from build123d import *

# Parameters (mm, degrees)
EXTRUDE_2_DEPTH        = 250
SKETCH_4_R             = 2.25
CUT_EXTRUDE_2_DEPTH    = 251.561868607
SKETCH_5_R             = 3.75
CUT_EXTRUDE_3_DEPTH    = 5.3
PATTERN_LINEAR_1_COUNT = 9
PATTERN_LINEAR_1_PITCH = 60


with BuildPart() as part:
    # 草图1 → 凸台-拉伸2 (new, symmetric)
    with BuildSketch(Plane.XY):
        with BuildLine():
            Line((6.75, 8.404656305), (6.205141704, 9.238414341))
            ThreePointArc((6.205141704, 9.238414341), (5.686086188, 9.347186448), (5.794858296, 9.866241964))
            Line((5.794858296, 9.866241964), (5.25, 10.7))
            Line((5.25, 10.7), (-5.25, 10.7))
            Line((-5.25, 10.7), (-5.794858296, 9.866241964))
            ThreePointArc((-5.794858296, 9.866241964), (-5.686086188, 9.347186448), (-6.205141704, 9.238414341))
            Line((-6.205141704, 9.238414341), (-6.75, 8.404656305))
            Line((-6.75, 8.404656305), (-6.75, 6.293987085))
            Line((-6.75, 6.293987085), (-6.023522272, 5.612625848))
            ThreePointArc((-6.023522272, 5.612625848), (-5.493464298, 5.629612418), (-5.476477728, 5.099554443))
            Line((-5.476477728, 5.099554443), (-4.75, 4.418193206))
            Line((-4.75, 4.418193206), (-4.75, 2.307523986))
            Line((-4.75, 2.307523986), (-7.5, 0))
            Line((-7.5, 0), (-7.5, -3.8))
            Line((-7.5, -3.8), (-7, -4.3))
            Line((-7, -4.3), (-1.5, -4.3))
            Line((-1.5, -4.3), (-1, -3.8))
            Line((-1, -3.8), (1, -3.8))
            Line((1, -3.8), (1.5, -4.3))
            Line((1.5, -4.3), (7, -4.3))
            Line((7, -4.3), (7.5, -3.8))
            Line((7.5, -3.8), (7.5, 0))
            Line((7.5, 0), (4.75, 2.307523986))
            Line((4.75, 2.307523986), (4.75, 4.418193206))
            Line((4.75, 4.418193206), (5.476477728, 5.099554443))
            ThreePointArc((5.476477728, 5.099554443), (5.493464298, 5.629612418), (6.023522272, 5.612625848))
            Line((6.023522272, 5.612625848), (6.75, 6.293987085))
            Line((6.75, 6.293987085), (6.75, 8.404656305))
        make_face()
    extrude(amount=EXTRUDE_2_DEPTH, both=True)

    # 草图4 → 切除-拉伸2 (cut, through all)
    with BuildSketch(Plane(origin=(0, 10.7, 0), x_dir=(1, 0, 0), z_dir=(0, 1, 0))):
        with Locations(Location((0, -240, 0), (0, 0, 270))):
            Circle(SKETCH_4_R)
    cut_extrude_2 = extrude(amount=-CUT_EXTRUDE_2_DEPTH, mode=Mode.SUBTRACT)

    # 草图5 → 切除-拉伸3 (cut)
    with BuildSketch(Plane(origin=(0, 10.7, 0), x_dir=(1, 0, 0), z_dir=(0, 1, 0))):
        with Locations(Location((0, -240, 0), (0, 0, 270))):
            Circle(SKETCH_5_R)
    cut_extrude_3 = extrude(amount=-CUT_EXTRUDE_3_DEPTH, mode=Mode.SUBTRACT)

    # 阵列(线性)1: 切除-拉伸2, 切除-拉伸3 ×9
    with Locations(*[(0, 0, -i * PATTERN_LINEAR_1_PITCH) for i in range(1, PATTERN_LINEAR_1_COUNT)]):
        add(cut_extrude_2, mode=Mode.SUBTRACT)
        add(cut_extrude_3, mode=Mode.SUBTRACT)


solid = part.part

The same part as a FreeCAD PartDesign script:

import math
import FreeCAD as App
import Part
import Sketcher
from FreeCAD import Vector
Q = App.Units.Quantity

doc = App.newDocument("Part")
body = doc.addObject("PartDesign::Body", "Body")

# Sketch on XY plane
sketch1 = body.newObject("Sketcher::SketchObject", "Sketch")
sketch1.AttachmentSupport = (doc.getObject("XY_Plane"), [""])
sketch1.MapMode = "FlatFace"
sketch1.addGeometry(Part.LineSegment(Vector(6.75, 8.404656, 0), Vector(6.205142, 9.238414, 0)), False)
sketch1.addGeometry(Part.ArcOfCircle(Part.Circle(Vector(6, 9.552328, 0), Vector(0, 0, 1), 0.375), math.radians(123.164492), math.radians(303.164492)), False)
sketch1.addGeometry(Part.LineSegment(Vector(5.794858, 9.866242, 0), Vector(5.25, 10.7, 0)), False)
sketch1.addGeometry(Part.LineSegment(Vector(5.25, 10.7, 0), Vector(-5.25, 10.7, 0)), False)
sketch1.addGeometry(Part.LineSegment(Vector(-5.25, 10.7, 0), Vector(-5.794858, 9.866242, 0)), False)
sketch1.addGeometry(Part.ArcOfCircle(Part.Circle(Vector(-6, 9.552328, 0), Vector(0, 0, 1), 0.375), math.radians(-123.164492), math.radians(56.835508)), False)
sketch1.addGeometry(Part.LineSegment(Vector(-6.205142, 9.238414, 0), Vector(-6.75, 8.404656, 0)), False)
sketch1.addGeometry(Part.LineSegment(Vector(-6.75, 8.404656, 0), Vector(-6.75, 6.293987, 0)), False)
sketch1.addGeometry(Part.LineSegment(Vector(-6.75, 6.293987, 0), Vector(-6.023522, 5.612626, 0)), False)
sketch1.addGeometry(Part.ArcOfCircle(Part.Circle(Vector(-5.75, 5.35609, 0), Vector(0, 0, 1), 0.375), math.radians(-43.164492), math.radians(136.835508)), False)
sketch1.addGeometry(Part.LineSegment(Vector(-5.476478, 5.099554, 0), Vector(-4.75, 4.418193, 0)), False)
sketch1.addGeometry(Part.LineSegment(Vector(-4.75, 4.418193, 0), Vector(-4.75, 2.307524, 0)), False)
sketch1.addGeometry(Part.LineSegment(Vector(-4.75, 2.307524, 0), Vector(-7.5, 0, 0)), False)
sketch1.addGeometry(Part.LineSegment(Vector(-7.5, 0, 0), Vector(-7.5, -3.8, 0)), False)
sketch1.addGeometry(Part.LineSegment(Vector(-7.5, -3.8, 0), Vector(-7, -4.3, 0)), False)
sketch1.addGeometry(Part.LineSegment(Vector(-7, -4.3, 0), Vector(-1.5, -4.3, 0)), False)
sketch1.addGeometry(Part.LineSegment(Vector(-1.5, -4.3, 0), Vector(-1, -3.8, 0)), False)
sketch1.addGeometry(Part.LineSegment(Vector(-1, -3.8, 0), Vector(1, -3.8, 0)), False)
sketch1.addGeometry(Part.LineSegment(Vector(1, -3.8, 0), Vector(1.5, -4.3, 0)), False)
sketch1.addGeometry(Part.LineSegment(Vector(1.5, -4.3, 0), Vector(7, -4.3, 0)), False)
sketch1.addGeometry(Part.LineSegment(Vector(7, -4.3, 0), Vector(7.5, -3.8, 0)), False)
sketch1.addGeometry(Part.LineSegment(Vector(7.5, -3.8, 0), Vector(7.5, 0, 0)), False)
sketch1.addGeometry(Part.LineSegment(Vector(7.5, 0, 0), Vector(4.75, 2.307524, 0)), False)
sketch1.addGeometry(Part.LineSegment(Vector(4.75, 2.307524, 0), Vector(4.75, 4.418193, 0)), False)
sketch1.addGeometry(Part.LineSegment(Vector(4.75, 4.418193, 0), Vector(5.476478, 5.099554, 0)), False)
sketch1.addGeometry(Part.ArcOfCircle(Part.Circle(Vector(5.75, 5.35609, 0), Vector(0, 0, 1), 0.375), math.radians(43.164492), math.radians(223.164492)), False)
sketch1.addGeometry(Part.LineSegment(Vector(6.023522, 5.612626, 0), Vector(6.75, 6.293987, 0)), False)
sketch1.addGeometry(Part.LineSegment(Vector(6.75, 6.293987, 0), Vector(6.75, 8.404656, 0)), False)
sketch1.addConstraint(Sketcher.Constraint("Coincident", 0, 2, 1, 2))
sketch1.addConstraint(Sketcher.Constraint("Coincident", 1, 1, 2, 1))
sketch1.addConstraint(Sketcher.Constraint("Coincident", 2, 2, 3, 1))
sketch1.addConstraint(Sketcher.Constraint("Coincident", 3, 2, 4, 1))
sketch1.addConstraint(Sketcher.Constraint("Coincident", 4, 2, 5, 2))
sketch1.addConstraint(Sketcher.Constraint("Coincident", 5, 1, 6, 1))
sketch1.addConstraint(Sketcher.Constraint("Coincident", 6, 2, 7, 1))
sketch1.addConstraint(Sketcher.Constraint("Coincident", 7, 2, 8, 1))
sketch1.addConstraint(Sketcher.Constraint("Coincident", 8, 2, 9, 2))
sketch1.addConstraint(Sketcher.Constraint("Coincident", 9, 1, 10, 1))
sketch1.addConstraint(Sketcher.Constraint("Coincident", 10, 2, 11, 1))
sketch1.addConstraint(Sketcher.Constraint("Coincident", 11, 2, 12, 1))
sketch1.addConstraint(Sketcher.Constraint("Coincident", 12, 2, 13, 1))
sketch1.addConstraint(Sketcher.Constraint("Coincident", 13, 2, 14, 1))
sketch1.addConstraint(Sketcher.Constraint("Coincident", 14, 2, 15, 1))
sketch1.addConstraint(Sketcher.Constraint("Coincident", 15, 2, 16, 1))
sketch1.addConstraint(Sketcher.Constraint("Coincident", 16, 2, 17, 1))
sketch1.addConstraint(Sketcher.Constraint("Coincident", 17, 2, 18, 1))
sketch1.addConstraint(Sketcher.Constraint("Coincident", 18, 2, 19, 1))
sketch1.addConstraint(Sketcher.Constraint("Coincident", 19, 2, 20, 1))
sketch1.addConstraint(Sketcher.Constraint("Coincident", 20, 2, 21, 1))
sketch1.addConstraint(Sketcher.Constraint("Coincident", 21, 2, 22, 1))
sketch1.addConstraint(Sketcher.Constraint("Coincident", 22, 2, 23, 1))
sketch1.addConstraint(Sketcher.Constraint("Coincident", 23, 2, 24, 1))
sketch1.addConstraint(Sketcher.Constraint("Coincident", 24, 2, 25, 2))
sketch1.addConstraint(Sketcher.Constraint("Coincident", 25, 1, 26, 1))
sketch1.addConstraint(Sketcher.Constraint("Coincident", 26, 2, 27, 1))
sketch1.addConstraint(Sketcher.Constraint("Coincident", 27, 2, 0, 1))
sketch1.addConstraint(Sketcher.Constraint("Horizontal", 3))
sketch1.addConstraint(Sketcher.Constraint("Vertical", 7))
sketch1.addConstraint(Sketcher.Constraint("Vertical", 11))
sketch1.addConstraint(Sketcher.Constraint("Vertical", 13))
sketch1.addConstraint(Sketcher.Constraint("Horizontal", 15))
sketch1.addConstraint(Sketcher.Constraint("Horizontal", 17))
sketch1.addConstraint(Sketcher.Constraint("Horizontal", 19))
sketch1.addConstraint(Sketcher.Constraint("Vertical", 21))
sketch1.addConstraint(Sketcher.Constraint("Vertical", 23))
sketch1.addConstraint(Sketcher.Constraint("Vertical", 27))
sketch1.addConstraint(Sketcher.Constraint("Equal", 1, 5))
sketch1.addConstraint(Sketcher.Constraint("Equal", 5, 9))
sketch1.addConstraint(Sketcher.Constraint("Equal", 9, 25))
sketch1.addConstraint(Sketcher.Constraint("Symmetric", 12, 2, 21, 2, -1, 1))
sketch1.addConstraint(Sketcher.Constraint("Symmetric", 1, 3, 5, 3, -2))
sketch1.addConstraint(Sketcher.Constraint("Symmetric", 9, 3, 25, 3, -2))
sketch1.addConstraint(Sketcher.Constraint("Symmetric", 15, 2, 18, 2, -2))
sketch1.addConstraint(Sketcher.Constraint("Symmetric", 11, 2, 22, 2, -2))
sketch1.addConstraint(Sketcher.Constraint("Symmetric", 7, 2, 26, 2, -2))
sketch1.addConstraint(Sketcher.Constraint("PointOnObject", 12, 2, -1))
sketch1.addConstraint(Sketcher.Constraint("Parallel", 0, 2))
sketch1.addConstraint(Sketcher.Constraint("Parallel", 4, 6))
sketch1.addConstraint(Sketcher.Constraint("Parallel", 8, 10))
sketch1.addConstraint(Sketcher.Constraint("Perpendicular", 14, 16))
sketch1.addConstraint(Sketcher.Constraint("Perpendicular", 16, 18))
sketch1.addConstraint(Sketcher.Constraint("Perpendicular", 18, 20))
sketch1.addConstraint(Sketcher.Constraint("Parallel", 24, 26))
sketch1.addConstraint(Sketcher.Constraint("Horizontal", 1, 1, 4, 2))
sketch1.addConstraint(Sketcher.Constraint("Horizontal", 0, 2, 5, 1))
sketch1.addConstraint(Sketcher.Constraint("Horizontal", 13, 2, 16, 2))
sketch1.addConstraint(Sketcher.Constraint("Horizontal", 17, 2, 20, 2))
sketch1.addConstraint(Sketcher.Constraint("Horizontal", 10, 2, 23, 2))
sketch1.addConstraint(Sketcher.Constraint("Horizontal", 9, 1, 24, 2))
sketch1.addConstraint(Sketcher.Constraint("Horizontal", 6, 2, 27, 2))
sketch1.addConstraint(Sketcher.Constraint("Equal", 15, 19))
sketch1.addConstraint(Sketcher.Constraint("Equal", 7, 11))
sketch1.addConstraint(Sketcher.Constraint("Equal", 0, 2))
sketch1.addConstraint(Sketcher.Constraint("Equal", 6, 8))
sketch1.addConstraint(Sketcher.Constraint("Equal", 8, 10))
sketch1.addConstraint(Sketcher.Constraint("DistanceX", 17, 1, 17, 2, Q("2 mm")))
sketch1.addConstraint(Sketcher.Constraint("Angle", 12, Q("-140 deg")))
sketch1.addConstraint(Sketcher.Constraint("DistanceX", 3, 2, 3, 1, Q("10.5 mm")))
sketch1.addConstraint(Sketcher.Constraint("DistanceX", 15, 1, 15, 2, Q("5.5 mm")))
sketch1.addConstraint(Sketcher.Constraint("DistanceY", 13, 2, 13, 1, Q("3.8 mm")))
sketch1.addConstraint(Sketcher.Constraint("DistanceX", -1, 1, 1, 3, Q("6 mm")))
sketch1.addConstraint(Sketcher.Constraint("DistanceX", 14, 2, -1, 1, Q("7 mm")))
sketch1.addConstraint(Sketcher.Constraint("Radius", 1, Q("0.375 mm")))
sketch1.addConstraint(Sketcher.Constraint("DistanceX", 6, 2, 9, 3, Q("1 mm")))
sketch1.addConstraint(Sketcher.Constraint("DistanceX", 9, 3, 10, 2, Q("1 mm")))
sketch1.addConstraint(Sketcher.Constraint("DistanceY", -1, 1, 2, 2, Q("10.7 mm")))
sketch1.addConstraint(Sketcher.Constraint("DistanceX", 9, 3, 25, 3, Q("11.5 mm")))
sketch1.addConstraint(Sketcher.Constraint("DistanceY", 7, 2, 7, 1, Q("2.110669 mm")))
sketch1.addConstraint(Sketcher.Constraint("DistanceY", 9, 1, 6, 2, Q("3.305102 mm")))
sketch1.addConstraint(Sketcher.Constraint("DistanceX", -1, 1, 0, 2, Q("6.205142 mm")))
pad1 = body.newObject("PartDesign::Pad", "Pad")
pad1.Profile = sketch1
pad1.Length = 500
pad1.Midplane = True

# Sketch on XZ plane
sketch2 = body.newObject("Sketcher::SketchObject", "Sketch001")
sketch2.AttachmentSupport = (doc.getObject("XZ_Plane"), [""])
sketch2.MapMode = "FlatFace"
sketch2.AttachmentOffset = App.Placement(Vector(0, 0, -10.7), App.Rotation())
sketch2.addGeometry(Part.Circle(Vector(0, 240, 0), Vector(0, 0, 1), 2.25), False)
sketch2.addConstraint(Sketcher.Constraint("PointOnObject", 0, 3, -2))
sketch2.addConstraint(Sketcher.Constraint("Diameter", 0, Q("4.5 mm")))
sketch2.addConstraint(Sketcher.Constraint("DistanceY", -1, 1, 0, 3, Q("240 mm")))
pocket1 = body.newObject("PartDesign::Pocket", "Pocket")
pocket1.Profile = sketch2
pocket1.Type = "ThroughAll"
pocket1.Reversed = True

# Sketch on XZ plane
sketch3 = body.newObject("Sketcher::SketchObject", "Sketch002")
sketch3.AttachmentSupport = (doc.getObject("XZ_Plane"), [""])
sketch3.MapMode = "FlatFace"
sketch3.AttachmentOffset = App.Placement(Vector(0, 0, -10.7), App.Rotation())
sketch3.addGeometry(Part.Circle(Vector(0, 240, 0), Vector(0, 0, 1), 3.75), False)
sketch3.addConstraint(Sketcher.Constraint("PointOnObject", 0, 3, -2))
sketch3.addConstraint(Sketcher.Constraint("Diameter", 0, Q("7.5 mm")))
sketch3.addConstraint(Sketcher.Constraint("DistanceY", -1, 1, 0, 3, Q("240 mm")))
pocket2 = body.newObject("PartDesign::Pocket", "Pocket001")
pocket2.Profile = sketch3
pocket2.Length = 5.3
pocket2.Reversed = True
doc.recompute()

linearpattern = body.newObject("PartDesign::LinearPattern", "LinearPattern")
linearpattern.Originals = [pocket1, pocket2]
linearpattern.Direction = (doc.getObject("Z_Axis"), [""])
linearpattern.Mode = "offset"
linearpattern.Offset = 60
linearpattern.Occurrences = 9
linearpattern.Reversed = True
body.Tip = linearpattern

doc.recompute()
